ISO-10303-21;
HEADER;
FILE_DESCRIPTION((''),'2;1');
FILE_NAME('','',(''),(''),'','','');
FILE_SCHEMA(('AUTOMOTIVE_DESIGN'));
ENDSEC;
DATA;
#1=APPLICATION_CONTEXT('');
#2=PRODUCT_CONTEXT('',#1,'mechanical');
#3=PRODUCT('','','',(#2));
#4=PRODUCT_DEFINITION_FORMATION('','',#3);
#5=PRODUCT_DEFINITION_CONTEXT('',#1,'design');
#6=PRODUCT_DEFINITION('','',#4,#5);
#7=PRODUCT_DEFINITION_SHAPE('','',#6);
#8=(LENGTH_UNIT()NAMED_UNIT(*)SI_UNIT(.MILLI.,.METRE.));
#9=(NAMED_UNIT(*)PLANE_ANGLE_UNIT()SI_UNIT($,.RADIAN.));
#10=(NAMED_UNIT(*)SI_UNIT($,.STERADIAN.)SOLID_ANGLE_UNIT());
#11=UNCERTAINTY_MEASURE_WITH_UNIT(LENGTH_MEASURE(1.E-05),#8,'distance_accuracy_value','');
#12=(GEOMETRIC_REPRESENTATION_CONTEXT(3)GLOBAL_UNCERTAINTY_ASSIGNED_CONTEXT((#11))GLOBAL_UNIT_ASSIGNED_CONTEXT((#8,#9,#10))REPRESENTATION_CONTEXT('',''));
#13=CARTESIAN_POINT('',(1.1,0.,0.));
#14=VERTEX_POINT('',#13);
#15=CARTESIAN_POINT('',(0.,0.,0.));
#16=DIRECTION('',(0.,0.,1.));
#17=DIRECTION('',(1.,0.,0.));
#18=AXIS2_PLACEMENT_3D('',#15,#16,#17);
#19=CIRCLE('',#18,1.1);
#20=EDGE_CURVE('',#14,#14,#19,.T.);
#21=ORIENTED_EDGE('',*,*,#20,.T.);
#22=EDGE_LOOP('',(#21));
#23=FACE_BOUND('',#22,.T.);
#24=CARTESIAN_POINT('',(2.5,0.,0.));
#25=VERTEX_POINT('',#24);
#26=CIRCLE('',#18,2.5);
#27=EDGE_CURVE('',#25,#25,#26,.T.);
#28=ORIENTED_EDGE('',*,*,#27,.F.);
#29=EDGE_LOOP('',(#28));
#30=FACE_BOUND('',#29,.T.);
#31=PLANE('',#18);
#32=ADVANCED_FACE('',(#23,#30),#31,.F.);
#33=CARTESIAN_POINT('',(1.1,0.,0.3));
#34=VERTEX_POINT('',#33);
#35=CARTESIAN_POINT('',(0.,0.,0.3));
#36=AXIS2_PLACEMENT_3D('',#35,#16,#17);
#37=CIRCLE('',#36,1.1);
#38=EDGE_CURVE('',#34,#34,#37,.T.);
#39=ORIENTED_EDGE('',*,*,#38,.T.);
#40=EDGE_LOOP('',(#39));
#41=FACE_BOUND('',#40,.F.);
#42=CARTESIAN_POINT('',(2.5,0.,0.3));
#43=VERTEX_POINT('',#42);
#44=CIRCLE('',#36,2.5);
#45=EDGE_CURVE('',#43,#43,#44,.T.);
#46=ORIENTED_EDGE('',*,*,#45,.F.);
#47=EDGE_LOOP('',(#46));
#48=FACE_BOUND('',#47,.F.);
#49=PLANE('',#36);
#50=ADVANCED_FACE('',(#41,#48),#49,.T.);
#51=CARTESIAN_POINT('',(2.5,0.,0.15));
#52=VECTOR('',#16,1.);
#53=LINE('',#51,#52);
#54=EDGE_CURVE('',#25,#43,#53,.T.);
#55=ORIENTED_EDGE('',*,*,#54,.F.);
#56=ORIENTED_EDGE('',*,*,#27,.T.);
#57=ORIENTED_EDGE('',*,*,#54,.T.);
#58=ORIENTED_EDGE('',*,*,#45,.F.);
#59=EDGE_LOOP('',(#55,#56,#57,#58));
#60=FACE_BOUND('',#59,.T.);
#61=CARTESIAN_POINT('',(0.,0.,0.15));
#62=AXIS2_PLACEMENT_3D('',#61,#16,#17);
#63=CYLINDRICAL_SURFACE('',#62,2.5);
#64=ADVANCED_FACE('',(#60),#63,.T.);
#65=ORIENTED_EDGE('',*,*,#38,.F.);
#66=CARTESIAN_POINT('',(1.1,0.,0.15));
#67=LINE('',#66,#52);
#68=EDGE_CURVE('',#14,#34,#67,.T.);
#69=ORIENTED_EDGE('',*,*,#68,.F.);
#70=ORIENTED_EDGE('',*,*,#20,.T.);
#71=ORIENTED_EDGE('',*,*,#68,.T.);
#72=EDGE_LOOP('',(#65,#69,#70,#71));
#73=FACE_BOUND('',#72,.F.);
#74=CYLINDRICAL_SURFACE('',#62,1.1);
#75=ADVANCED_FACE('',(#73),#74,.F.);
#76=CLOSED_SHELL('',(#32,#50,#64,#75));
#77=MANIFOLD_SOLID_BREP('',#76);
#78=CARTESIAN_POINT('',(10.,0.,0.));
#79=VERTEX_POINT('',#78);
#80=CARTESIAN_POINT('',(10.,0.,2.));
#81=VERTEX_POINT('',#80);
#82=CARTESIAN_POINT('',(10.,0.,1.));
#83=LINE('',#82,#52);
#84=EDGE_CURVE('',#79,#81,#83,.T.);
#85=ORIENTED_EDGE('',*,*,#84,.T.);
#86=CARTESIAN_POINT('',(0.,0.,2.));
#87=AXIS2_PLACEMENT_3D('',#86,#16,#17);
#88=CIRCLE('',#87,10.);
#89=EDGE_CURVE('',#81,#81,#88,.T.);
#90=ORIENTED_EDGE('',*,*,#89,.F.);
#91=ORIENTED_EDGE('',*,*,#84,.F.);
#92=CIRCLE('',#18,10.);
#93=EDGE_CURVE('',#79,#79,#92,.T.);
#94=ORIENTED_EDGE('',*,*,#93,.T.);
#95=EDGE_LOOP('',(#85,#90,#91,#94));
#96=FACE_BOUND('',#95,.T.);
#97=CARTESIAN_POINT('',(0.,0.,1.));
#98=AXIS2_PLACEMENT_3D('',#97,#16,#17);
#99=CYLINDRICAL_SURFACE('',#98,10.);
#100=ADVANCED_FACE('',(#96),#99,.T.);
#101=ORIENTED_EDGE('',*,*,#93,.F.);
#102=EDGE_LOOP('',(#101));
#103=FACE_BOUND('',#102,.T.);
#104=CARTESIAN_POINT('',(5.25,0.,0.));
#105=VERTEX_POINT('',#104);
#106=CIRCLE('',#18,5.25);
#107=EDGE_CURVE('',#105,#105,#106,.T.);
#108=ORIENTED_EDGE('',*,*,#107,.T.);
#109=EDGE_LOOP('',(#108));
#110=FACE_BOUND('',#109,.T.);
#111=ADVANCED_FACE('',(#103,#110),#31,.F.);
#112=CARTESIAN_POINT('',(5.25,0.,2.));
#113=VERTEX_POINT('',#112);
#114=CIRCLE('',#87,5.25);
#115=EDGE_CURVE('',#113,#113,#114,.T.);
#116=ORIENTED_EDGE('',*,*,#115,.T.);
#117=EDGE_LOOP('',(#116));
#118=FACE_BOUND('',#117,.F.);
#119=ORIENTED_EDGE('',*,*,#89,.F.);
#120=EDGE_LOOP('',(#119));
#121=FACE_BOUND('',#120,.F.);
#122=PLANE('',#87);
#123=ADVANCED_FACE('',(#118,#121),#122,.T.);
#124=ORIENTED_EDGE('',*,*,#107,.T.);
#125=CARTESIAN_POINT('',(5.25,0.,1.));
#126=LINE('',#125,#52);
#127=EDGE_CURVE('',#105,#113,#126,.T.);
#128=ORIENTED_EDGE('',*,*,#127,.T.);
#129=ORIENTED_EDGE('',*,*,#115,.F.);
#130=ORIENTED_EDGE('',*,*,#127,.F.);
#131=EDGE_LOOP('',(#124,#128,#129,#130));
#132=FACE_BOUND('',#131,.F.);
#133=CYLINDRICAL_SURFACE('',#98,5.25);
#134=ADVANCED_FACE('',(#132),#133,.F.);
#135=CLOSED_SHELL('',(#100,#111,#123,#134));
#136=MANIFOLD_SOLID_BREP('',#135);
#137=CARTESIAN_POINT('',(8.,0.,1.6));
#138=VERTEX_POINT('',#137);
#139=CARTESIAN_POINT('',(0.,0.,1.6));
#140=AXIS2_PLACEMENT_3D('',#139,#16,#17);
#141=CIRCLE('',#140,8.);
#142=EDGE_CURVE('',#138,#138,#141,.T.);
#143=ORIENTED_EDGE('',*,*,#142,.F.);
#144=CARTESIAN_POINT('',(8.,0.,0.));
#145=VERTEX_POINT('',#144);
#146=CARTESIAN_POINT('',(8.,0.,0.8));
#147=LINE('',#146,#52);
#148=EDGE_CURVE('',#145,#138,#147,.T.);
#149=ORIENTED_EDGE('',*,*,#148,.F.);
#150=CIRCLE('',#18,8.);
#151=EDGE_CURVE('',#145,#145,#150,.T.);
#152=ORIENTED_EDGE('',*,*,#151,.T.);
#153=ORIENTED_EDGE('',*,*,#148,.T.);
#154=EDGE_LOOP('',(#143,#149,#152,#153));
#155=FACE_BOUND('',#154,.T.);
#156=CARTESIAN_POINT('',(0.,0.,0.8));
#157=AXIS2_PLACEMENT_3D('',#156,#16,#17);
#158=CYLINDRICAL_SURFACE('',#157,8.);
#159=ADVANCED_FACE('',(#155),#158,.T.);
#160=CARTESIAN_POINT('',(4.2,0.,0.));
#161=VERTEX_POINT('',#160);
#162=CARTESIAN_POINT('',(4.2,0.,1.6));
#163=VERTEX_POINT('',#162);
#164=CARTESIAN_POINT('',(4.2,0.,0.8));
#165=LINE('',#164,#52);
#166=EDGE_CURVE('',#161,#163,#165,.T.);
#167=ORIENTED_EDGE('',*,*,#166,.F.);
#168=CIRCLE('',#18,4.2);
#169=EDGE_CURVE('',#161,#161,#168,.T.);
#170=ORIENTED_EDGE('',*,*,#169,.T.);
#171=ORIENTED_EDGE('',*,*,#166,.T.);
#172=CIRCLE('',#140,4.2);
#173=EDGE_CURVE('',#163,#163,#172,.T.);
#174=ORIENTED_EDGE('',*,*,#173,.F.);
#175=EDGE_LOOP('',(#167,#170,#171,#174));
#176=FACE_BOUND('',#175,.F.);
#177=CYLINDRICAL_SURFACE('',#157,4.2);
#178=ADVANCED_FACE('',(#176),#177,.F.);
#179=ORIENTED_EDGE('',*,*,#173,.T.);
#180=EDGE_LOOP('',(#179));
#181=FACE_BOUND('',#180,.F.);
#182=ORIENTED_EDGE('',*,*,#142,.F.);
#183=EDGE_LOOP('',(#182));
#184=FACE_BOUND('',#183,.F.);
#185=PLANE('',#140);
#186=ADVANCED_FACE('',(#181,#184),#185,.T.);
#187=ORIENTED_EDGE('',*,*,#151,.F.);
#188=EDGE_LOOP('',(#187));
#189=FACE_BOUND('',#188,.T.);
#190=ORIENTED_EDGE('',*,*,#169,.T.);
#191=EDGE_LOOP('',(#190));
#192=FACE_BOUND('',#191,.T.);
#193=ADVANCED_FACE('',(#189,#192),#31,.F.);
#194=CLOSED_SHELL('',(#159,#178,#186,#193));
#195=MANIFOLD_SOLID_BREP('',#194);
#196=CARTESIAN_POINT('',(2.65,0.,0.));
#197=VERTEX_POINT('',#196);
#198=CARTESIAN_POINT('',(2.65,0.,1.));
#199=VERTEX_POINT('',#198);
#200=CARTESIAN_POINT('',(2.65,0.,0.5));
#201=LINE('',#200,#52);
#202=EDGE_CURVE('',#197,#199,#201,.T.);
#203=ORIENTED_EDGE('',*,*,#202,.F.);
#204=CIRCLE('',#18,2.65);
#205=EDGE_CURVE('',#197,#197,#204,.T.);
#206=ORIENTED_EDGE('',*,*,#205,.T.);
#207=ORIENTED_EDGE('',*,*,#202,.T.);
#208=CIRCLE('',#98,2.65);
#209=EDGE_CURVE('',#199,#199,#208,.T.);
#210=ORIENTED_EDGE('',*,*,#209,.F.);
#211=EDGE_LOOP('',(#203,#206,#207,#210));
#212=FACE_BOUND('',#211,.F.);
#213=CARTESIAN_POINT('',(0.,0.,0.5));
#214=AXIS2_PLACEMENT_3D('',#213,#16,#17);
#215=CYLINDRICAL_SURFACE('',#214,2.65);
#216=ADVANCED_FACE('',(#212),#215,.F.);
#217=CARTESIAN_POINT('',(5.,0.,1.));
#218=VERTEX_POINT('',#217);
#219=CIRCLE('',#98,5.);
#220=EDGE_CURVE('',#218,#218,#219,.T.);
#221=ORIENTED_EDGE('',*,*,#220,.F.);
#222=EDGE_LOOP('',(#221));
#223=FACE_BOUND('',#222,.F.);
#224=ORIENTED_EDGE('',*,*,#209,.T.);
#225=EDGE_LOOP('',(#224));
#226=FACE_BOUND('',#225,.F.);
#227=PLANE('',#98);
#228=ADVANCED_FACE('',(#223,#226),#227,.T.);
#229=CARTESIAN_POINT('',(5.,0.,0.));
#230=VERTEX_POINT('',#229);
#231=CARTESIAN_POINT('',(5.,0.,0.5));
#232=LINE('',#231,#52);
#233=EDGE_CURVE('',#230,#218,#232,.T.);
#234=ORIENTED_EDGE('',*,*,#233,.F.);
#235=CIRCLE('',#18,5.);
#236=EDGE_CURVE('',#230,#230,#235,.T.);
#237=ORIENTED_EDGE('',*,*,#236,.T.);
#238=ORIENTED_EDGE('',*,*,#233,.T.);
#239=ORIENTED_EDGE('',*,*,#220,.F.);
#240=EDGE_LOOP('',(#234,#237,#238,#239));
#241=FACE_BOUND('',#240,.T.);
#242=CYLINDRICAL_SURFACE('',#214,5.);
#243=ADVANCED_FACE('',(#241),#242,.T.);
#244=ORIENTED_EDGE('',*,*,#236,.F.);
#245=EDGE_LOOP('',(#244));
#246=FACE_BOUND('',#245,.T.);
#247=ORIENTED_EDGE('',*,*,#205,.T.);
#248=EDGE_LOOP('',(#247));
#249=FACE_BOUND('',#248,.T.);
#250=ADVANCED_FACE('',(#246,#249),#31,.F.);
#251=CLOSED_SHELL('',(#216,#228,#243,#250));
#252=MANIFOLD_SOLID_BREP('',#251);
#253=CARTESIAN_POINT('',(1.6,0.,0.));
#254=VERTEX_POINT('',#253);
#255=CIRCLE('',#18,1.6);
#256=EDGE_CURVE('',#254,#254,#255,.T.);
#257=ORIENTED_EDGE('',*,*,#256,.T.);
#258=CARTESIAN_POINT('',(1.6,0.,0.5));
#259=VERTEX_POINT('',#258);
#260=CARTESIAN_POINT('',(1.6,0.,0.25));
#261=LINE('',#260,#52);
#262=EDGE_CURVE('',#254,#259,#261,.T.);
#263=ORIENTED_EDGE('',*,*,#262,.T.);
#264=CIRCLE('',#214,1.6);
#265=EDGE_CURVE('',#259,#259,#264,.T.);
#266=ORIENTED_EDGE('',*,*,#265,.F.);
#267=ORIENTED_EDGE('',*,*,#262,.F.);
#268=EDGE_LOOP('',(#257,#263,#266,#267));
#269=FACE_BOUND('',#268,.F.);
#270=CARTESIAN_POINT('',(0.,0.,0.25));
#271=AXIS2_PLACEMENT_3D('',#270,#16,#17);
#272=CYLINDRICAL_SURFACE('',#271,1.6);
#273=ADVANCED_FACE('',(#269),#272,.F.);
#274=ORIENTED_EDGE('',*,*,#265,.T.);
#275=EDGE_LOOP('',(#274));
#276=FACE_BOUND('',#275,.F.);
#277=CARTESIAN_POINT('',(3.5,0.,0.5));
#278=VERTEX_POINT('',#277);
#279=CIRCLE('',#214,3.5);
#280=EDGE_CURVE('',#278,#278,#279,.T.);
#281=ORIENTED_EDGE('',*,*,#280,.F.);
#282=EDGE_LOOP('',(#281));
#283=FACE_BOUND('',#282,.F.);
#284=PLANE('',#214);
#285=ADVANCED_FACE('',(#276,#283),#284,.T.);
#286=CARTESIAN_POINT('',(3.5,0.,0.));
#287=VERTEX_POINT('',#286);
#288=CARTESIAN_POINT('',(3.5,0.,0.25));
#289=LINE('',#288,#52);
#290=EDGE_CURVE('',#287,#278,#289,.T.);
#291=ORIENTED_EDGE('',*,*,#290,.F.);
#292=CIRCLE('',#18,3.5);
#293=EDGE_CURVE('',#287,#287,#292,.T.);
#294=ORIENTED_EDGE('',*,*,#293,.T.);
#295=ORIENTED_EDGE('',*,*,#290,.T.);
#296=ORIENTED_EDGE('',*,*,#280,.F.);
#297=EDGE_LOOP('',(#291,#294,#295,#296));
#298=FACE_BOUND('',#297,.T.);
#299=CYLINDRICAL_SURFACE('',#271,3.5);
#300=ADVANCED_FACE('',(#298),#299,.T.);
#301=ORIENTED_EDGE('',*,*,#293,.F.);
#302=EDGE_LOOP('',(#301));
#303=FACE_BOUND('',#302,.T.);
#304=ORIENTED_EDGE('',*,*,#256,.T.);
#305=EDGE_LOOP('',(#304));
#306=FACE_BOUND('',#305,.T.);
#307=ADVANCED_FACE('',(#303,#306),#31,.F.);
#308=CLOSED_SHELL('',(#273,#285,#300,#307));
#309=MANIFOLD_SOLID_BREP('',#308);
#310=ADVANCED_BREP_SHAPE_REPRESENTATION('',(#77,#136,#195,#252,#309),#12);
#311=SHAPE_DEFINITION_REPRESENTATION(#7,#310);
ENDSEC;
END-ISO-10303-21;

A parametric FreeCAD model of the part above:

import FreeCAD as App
import Part
import Sketcher

V = App.Vector
Q = App.Units.Quantity

doc = App.newDocument("Part")
body = doc.addObject("PartDesign::Body", "Body")

# Sketch on XZ plane
sketch1 = doc.addObject("Sketcher::SketchObject", "Sketch")
body.addObject(sketch1)
sketch1.AttachmentSupport = (doc.XZ_Plane, [""])
sketch1.MapMode = "FlatFace"
sketch1.addGeometry([
    Part.LineSegment(V(1.6, 0.5, 0), V(1.6, 0, 0)),
    Part.LineSegment(V(1.6, 0, 0), V(3.5, 0, 0)),
    Part.LineSegment(V(3.5, 0, 0), V(3.5, 0.5, 0)),
    Part.LineSegment(V(3.5, 0.5, 0), V(1.6, 0.5, 0)),
], False)
sketch1.addConstraint([
    Sketcher.Constraint("Coincident", 0, 2, 1, 1),
    Sketcher.Constraint("Coincident", 1, 2, 2, 1),
    Sketcher.Constraint("Coincident", 2, 2, 3, 1),
    Sketcher.Constraint("Coincident", 3, 2, 0, 1),
    Sketcher.Constraint("Vertical", 0),
    Sketcher.Constraint("Horizontal", 1),
    Sketcher.Constraint("Vertical", 2),
    Sketcher.Constraint("Horizontal", 3),
    Sketcher.Constraint("PointOnObject", 0, 2, -1),
    Sketcher.Constraint("DistanceX", 1, 1, 1, 2, Q("1.9 mm")),
    Sketcher.Constraint("DistanceY", 0, 2, 0, 1, Q("0.5 mm")),
    Sketcher.Constraint("DistanceX", -1, 1, 0, 2, Q("1.6 mm")),
])
revolution = doc.addObject("PartDesign::Revolution", "Revolution")
body.addObject(revolution)
revolution.Profile = sketch1
revolution.ReferenceAxis = (sketch1, ["V_Axis"])
revolution.Angle = 360
body2 = doc.addObject("PartDesign::Body", "Body001")

# Sketch on XZ plane
sketch2 = doc.addObject("Sketcher::SketchObject", "Sketch001")
body2.addObject(sketch2)
sketch2.AttachmentSupport = (doc.getObject("XZ_Plane001"), [""])
sketch2.MapMode = "FlatFace"
sketch2.addGeometry([
    Part.LineSegment(V(2.6, 1, 0), V(2.6, 0, 0)),
    Part.LineSegment(V(2.6, 0, 0), V(5, 0, 0)),
    Part.LineSegment(V(5, 0, 0), V(5, 1, 0)),
    Part.LineSegment(V(5, 1, 0), V(2.6, 1, 0)),
], False)
sketch2.addConstraint([
    Sketcher.Constraint("Coincident", 0, 2, 1, 1),
    Sketcher.Constraint("Coincident", 1, 2, 2, 1),
    Sketcher.Constraint("Coincident", 2, 2, 3, 1),
    Sketcher.Constraint("Coincident", 3, 2, 0, 1),
    Sketcher.Constraint("Vertical", 0),
    Sketcher.Constraint("Horizontal", 1),
    Sketcher.Constraint("Vertical", 2),
    Sketcher.Constraint("Horizontal", 3),
    Sketcher.Constraint("PointOnObject", 0, 2, -1),
    Sketcher.Constraint("DistanceY", 0, 2, 0, 1, Q("1 mm")),
    Sketcher.Constraint("DistanceX", -1, 1, 1, 2, Q("5 mm")),
    Sketcher.Constraint("DistanceX", 1, 1, 1, 2, Q("2.35 mm")),
])
revolution2 = doc.addObject("PartDesign::Revolution", "Revolution001")
body2.addObject(revolution2)
revolution2.Profile = sketch2
revolution2.ReferenceAxis = (sketch2, ["V_Axis"])
revolution2.Angle = 360
body3 = doc.addObject("PartDesign::Body", "Body002")

# Sketch on XZ plane
sketch3 = doc.addObject("Sketcher::SketchObject", "Sketch002")
body3.addObject(sketch3)
sketch3.AttachmentSupport = (doc.getObject("XZ_Plane002"), [""])
sketch3.MapMode = "FlatFace"
sketch3.addGeometry([
    Part.LineSegment(V(4.2, 1.6, 0), V(4.2, 0, 0)),
    Part.LineSegment(V(4.2, 0, 0), V(8, 0, 0)),
    Part.LineSegment(V(8, 0, 0), V(8, 1.6, 0)),
    Part.LineSegment(V(8, 1.6, 0), V(4.2, 1.6, 0)),
], False)
sketch3.addConstraint([
    Sketcher.Constraint("Coincident", 0, 2, 1, 1),
    Sketcher.Constraint("Coincident", 1, 2, 2, 1),
    Sketcher.Constraint("Coincident", 2, 2, 3, 1),
    Sketcher.Constraint("Coincident", 3, 2, 0, 1),
    Sketcher.Constraint("Vertical", 0),
    Sketcher.Constraint("Horizontal", 1),
    Sketcher.Constraint("Vertical", 2),
    Sketcher.Constraint("Horizontal", 3),
    Sketcher.Constraint("PointOnObject", 0, 2, -1),
    Sketcher.Constraint("DistanceX", 1, 1, 1, 2, Q("3.8 mm")),
    Sketcher.Constraint("DistanceY", 0, 2, 0, 1, Q("1.6 mm")),
    Sketcher.Constraint("DistanceX", -1, 1, 1, 2, Q("8 mm")),
])
revolution3 = doc.addObject("PartDesign::Revolution", "Revolution002")
body3.addObject(revolution3)
revolution3.Profile = sketch3
revolution3.ReferenceAxis = (sketch3, ["V_Axis"])
revolution3.Angle = 360
body4 = doc.addObject("PartDesign::Body", "Body003")

# Sketch on XZ plane
sketch4 = doc.addObject("Sketcher::SketchObject", "Sketch003")
body4.addObject(sketch4)
sketch4.AttachmentSupport = (doc.getObject("XZ_Plane003"), [""])
sketch4.MapMode = "FlatFace"
sketch4.addGeometry([
    Part.LineSegment(V(5.2, 2, 0), V(5.2, 0, 0)),
    Part.LineSegment(V(5.2, 0, 0), V(10, 0, 0)),
    Part.LineSegment(V(10, 0, 0), V(10, 2, 0)),
    Part.LineSegment(V(10, 2, 0), V(5.2, 2, 0)),
], False)
sketch4.addConstraint([
    Sketcher.Constraint("Coincident", 0, 2, 1, 1),
    Sketcher.Constraint("Coincident", 1, 2, 2, 1),
    Sketcher.Constraint("Coincident", 2, 2, 3, 1),
    Sketcher.Constraint("Coincident", 3, 2, 0, 1),
    Sketcher.Constraint("Vertical", 0),
    Sketcher.Constraint("Horizontal", 1),
    Sketcher.Constraint("Vertical", 2),
    Sketcher.Constraint("Horizontal", 3),
    Sketcher.Constraint("PointOnObject", 0, 2, -1),
    Sketcher.Constraint("DistanceY", 0, 2, 0, 1, Q("2 mm")),
    Sketcher.Constraint("DistanceX", -1, 1, 1, 2, Q("10 mm")),
    Sketcher.Constraint("DistanceX", 1, 1, 1, 2, Q("4.75 mm")),
])
revolution4 = doc.addObject("PartDesign::Revolution", "Revolution003")
body4.addObject(revolution4)
revolution4.Profile = sketch4
revolution4.ReferenceAxis = (sketch4, ["V_Axis"])
revolution4.Angle = 360
body5 = doc.addObject("PartDesign::Body", "Body004")

# Sketch on XZ plane
sketch5 = doc.addObject("Sketcher::SketchObject", "Sketch004")
body5.addObject(sketch5)
sketch5.AttachmentSupport = (doc.getObject("XZ_Plane004"), [""])
sketch5.MapMode = "FlatFace"
sketch5.addGeometry([
    Part.LineSegment(V(1.1, 0.3, 0), V(1.1, 0, 0)),
    Part.LineSegment(V(1.1, 0, 0), V(2.5, 0, 0)),
    Part.LineSegment(V(2.5, 0, 0), V(2.5, 0.3, 0)),
    Part.LineSegment(V(2.5, 0.3, 0), V(1.1, 0.3, 0)),
], False)
sketch5.addConstraint([
    Sketcher.Constraint("Coincident", 0, 2, 1, 1),
    Sketcher.Constraint("Coincident", 1, 2, 2, 1),
    Sketcher.Constraint("Coincident", 2, 2, 3, 1),
    Sketcher.Constraint("Coincident", 3, 2, 0, 1),
    Sketcher.Constraint("Vertical", 0),
    Sketcher.Constraint("Horizontal", 1),
    Sketcher.Constraint("Vertical", 2),
    Sketcher.Constraint("Horizontal", 3),
    Sketcher.Constraint("PointOnObject", 0, 2, -1),
    Sketcher.Constraint("DistanceX", 1, 1, 1, 2, Q("1.4 mm")),
    Sketcher.Constraint("DistanceY", 0, 2, 0, 1, Q("0.3 mm")),
    Sketcher.Constraint("DistanceX", -1, 1, 0, 2, Q("1.1 mm")),
])
revolution5 = doc.addObject("PartDesign::Revolution", "Revolution004")
body5.addObject(revolution5)
revolution5.Profile = sketch5
revolution5.ReferenceAxis = (sketch5, ["V_Axis"])
revolution5.Angle = 360

doc.recompute()
